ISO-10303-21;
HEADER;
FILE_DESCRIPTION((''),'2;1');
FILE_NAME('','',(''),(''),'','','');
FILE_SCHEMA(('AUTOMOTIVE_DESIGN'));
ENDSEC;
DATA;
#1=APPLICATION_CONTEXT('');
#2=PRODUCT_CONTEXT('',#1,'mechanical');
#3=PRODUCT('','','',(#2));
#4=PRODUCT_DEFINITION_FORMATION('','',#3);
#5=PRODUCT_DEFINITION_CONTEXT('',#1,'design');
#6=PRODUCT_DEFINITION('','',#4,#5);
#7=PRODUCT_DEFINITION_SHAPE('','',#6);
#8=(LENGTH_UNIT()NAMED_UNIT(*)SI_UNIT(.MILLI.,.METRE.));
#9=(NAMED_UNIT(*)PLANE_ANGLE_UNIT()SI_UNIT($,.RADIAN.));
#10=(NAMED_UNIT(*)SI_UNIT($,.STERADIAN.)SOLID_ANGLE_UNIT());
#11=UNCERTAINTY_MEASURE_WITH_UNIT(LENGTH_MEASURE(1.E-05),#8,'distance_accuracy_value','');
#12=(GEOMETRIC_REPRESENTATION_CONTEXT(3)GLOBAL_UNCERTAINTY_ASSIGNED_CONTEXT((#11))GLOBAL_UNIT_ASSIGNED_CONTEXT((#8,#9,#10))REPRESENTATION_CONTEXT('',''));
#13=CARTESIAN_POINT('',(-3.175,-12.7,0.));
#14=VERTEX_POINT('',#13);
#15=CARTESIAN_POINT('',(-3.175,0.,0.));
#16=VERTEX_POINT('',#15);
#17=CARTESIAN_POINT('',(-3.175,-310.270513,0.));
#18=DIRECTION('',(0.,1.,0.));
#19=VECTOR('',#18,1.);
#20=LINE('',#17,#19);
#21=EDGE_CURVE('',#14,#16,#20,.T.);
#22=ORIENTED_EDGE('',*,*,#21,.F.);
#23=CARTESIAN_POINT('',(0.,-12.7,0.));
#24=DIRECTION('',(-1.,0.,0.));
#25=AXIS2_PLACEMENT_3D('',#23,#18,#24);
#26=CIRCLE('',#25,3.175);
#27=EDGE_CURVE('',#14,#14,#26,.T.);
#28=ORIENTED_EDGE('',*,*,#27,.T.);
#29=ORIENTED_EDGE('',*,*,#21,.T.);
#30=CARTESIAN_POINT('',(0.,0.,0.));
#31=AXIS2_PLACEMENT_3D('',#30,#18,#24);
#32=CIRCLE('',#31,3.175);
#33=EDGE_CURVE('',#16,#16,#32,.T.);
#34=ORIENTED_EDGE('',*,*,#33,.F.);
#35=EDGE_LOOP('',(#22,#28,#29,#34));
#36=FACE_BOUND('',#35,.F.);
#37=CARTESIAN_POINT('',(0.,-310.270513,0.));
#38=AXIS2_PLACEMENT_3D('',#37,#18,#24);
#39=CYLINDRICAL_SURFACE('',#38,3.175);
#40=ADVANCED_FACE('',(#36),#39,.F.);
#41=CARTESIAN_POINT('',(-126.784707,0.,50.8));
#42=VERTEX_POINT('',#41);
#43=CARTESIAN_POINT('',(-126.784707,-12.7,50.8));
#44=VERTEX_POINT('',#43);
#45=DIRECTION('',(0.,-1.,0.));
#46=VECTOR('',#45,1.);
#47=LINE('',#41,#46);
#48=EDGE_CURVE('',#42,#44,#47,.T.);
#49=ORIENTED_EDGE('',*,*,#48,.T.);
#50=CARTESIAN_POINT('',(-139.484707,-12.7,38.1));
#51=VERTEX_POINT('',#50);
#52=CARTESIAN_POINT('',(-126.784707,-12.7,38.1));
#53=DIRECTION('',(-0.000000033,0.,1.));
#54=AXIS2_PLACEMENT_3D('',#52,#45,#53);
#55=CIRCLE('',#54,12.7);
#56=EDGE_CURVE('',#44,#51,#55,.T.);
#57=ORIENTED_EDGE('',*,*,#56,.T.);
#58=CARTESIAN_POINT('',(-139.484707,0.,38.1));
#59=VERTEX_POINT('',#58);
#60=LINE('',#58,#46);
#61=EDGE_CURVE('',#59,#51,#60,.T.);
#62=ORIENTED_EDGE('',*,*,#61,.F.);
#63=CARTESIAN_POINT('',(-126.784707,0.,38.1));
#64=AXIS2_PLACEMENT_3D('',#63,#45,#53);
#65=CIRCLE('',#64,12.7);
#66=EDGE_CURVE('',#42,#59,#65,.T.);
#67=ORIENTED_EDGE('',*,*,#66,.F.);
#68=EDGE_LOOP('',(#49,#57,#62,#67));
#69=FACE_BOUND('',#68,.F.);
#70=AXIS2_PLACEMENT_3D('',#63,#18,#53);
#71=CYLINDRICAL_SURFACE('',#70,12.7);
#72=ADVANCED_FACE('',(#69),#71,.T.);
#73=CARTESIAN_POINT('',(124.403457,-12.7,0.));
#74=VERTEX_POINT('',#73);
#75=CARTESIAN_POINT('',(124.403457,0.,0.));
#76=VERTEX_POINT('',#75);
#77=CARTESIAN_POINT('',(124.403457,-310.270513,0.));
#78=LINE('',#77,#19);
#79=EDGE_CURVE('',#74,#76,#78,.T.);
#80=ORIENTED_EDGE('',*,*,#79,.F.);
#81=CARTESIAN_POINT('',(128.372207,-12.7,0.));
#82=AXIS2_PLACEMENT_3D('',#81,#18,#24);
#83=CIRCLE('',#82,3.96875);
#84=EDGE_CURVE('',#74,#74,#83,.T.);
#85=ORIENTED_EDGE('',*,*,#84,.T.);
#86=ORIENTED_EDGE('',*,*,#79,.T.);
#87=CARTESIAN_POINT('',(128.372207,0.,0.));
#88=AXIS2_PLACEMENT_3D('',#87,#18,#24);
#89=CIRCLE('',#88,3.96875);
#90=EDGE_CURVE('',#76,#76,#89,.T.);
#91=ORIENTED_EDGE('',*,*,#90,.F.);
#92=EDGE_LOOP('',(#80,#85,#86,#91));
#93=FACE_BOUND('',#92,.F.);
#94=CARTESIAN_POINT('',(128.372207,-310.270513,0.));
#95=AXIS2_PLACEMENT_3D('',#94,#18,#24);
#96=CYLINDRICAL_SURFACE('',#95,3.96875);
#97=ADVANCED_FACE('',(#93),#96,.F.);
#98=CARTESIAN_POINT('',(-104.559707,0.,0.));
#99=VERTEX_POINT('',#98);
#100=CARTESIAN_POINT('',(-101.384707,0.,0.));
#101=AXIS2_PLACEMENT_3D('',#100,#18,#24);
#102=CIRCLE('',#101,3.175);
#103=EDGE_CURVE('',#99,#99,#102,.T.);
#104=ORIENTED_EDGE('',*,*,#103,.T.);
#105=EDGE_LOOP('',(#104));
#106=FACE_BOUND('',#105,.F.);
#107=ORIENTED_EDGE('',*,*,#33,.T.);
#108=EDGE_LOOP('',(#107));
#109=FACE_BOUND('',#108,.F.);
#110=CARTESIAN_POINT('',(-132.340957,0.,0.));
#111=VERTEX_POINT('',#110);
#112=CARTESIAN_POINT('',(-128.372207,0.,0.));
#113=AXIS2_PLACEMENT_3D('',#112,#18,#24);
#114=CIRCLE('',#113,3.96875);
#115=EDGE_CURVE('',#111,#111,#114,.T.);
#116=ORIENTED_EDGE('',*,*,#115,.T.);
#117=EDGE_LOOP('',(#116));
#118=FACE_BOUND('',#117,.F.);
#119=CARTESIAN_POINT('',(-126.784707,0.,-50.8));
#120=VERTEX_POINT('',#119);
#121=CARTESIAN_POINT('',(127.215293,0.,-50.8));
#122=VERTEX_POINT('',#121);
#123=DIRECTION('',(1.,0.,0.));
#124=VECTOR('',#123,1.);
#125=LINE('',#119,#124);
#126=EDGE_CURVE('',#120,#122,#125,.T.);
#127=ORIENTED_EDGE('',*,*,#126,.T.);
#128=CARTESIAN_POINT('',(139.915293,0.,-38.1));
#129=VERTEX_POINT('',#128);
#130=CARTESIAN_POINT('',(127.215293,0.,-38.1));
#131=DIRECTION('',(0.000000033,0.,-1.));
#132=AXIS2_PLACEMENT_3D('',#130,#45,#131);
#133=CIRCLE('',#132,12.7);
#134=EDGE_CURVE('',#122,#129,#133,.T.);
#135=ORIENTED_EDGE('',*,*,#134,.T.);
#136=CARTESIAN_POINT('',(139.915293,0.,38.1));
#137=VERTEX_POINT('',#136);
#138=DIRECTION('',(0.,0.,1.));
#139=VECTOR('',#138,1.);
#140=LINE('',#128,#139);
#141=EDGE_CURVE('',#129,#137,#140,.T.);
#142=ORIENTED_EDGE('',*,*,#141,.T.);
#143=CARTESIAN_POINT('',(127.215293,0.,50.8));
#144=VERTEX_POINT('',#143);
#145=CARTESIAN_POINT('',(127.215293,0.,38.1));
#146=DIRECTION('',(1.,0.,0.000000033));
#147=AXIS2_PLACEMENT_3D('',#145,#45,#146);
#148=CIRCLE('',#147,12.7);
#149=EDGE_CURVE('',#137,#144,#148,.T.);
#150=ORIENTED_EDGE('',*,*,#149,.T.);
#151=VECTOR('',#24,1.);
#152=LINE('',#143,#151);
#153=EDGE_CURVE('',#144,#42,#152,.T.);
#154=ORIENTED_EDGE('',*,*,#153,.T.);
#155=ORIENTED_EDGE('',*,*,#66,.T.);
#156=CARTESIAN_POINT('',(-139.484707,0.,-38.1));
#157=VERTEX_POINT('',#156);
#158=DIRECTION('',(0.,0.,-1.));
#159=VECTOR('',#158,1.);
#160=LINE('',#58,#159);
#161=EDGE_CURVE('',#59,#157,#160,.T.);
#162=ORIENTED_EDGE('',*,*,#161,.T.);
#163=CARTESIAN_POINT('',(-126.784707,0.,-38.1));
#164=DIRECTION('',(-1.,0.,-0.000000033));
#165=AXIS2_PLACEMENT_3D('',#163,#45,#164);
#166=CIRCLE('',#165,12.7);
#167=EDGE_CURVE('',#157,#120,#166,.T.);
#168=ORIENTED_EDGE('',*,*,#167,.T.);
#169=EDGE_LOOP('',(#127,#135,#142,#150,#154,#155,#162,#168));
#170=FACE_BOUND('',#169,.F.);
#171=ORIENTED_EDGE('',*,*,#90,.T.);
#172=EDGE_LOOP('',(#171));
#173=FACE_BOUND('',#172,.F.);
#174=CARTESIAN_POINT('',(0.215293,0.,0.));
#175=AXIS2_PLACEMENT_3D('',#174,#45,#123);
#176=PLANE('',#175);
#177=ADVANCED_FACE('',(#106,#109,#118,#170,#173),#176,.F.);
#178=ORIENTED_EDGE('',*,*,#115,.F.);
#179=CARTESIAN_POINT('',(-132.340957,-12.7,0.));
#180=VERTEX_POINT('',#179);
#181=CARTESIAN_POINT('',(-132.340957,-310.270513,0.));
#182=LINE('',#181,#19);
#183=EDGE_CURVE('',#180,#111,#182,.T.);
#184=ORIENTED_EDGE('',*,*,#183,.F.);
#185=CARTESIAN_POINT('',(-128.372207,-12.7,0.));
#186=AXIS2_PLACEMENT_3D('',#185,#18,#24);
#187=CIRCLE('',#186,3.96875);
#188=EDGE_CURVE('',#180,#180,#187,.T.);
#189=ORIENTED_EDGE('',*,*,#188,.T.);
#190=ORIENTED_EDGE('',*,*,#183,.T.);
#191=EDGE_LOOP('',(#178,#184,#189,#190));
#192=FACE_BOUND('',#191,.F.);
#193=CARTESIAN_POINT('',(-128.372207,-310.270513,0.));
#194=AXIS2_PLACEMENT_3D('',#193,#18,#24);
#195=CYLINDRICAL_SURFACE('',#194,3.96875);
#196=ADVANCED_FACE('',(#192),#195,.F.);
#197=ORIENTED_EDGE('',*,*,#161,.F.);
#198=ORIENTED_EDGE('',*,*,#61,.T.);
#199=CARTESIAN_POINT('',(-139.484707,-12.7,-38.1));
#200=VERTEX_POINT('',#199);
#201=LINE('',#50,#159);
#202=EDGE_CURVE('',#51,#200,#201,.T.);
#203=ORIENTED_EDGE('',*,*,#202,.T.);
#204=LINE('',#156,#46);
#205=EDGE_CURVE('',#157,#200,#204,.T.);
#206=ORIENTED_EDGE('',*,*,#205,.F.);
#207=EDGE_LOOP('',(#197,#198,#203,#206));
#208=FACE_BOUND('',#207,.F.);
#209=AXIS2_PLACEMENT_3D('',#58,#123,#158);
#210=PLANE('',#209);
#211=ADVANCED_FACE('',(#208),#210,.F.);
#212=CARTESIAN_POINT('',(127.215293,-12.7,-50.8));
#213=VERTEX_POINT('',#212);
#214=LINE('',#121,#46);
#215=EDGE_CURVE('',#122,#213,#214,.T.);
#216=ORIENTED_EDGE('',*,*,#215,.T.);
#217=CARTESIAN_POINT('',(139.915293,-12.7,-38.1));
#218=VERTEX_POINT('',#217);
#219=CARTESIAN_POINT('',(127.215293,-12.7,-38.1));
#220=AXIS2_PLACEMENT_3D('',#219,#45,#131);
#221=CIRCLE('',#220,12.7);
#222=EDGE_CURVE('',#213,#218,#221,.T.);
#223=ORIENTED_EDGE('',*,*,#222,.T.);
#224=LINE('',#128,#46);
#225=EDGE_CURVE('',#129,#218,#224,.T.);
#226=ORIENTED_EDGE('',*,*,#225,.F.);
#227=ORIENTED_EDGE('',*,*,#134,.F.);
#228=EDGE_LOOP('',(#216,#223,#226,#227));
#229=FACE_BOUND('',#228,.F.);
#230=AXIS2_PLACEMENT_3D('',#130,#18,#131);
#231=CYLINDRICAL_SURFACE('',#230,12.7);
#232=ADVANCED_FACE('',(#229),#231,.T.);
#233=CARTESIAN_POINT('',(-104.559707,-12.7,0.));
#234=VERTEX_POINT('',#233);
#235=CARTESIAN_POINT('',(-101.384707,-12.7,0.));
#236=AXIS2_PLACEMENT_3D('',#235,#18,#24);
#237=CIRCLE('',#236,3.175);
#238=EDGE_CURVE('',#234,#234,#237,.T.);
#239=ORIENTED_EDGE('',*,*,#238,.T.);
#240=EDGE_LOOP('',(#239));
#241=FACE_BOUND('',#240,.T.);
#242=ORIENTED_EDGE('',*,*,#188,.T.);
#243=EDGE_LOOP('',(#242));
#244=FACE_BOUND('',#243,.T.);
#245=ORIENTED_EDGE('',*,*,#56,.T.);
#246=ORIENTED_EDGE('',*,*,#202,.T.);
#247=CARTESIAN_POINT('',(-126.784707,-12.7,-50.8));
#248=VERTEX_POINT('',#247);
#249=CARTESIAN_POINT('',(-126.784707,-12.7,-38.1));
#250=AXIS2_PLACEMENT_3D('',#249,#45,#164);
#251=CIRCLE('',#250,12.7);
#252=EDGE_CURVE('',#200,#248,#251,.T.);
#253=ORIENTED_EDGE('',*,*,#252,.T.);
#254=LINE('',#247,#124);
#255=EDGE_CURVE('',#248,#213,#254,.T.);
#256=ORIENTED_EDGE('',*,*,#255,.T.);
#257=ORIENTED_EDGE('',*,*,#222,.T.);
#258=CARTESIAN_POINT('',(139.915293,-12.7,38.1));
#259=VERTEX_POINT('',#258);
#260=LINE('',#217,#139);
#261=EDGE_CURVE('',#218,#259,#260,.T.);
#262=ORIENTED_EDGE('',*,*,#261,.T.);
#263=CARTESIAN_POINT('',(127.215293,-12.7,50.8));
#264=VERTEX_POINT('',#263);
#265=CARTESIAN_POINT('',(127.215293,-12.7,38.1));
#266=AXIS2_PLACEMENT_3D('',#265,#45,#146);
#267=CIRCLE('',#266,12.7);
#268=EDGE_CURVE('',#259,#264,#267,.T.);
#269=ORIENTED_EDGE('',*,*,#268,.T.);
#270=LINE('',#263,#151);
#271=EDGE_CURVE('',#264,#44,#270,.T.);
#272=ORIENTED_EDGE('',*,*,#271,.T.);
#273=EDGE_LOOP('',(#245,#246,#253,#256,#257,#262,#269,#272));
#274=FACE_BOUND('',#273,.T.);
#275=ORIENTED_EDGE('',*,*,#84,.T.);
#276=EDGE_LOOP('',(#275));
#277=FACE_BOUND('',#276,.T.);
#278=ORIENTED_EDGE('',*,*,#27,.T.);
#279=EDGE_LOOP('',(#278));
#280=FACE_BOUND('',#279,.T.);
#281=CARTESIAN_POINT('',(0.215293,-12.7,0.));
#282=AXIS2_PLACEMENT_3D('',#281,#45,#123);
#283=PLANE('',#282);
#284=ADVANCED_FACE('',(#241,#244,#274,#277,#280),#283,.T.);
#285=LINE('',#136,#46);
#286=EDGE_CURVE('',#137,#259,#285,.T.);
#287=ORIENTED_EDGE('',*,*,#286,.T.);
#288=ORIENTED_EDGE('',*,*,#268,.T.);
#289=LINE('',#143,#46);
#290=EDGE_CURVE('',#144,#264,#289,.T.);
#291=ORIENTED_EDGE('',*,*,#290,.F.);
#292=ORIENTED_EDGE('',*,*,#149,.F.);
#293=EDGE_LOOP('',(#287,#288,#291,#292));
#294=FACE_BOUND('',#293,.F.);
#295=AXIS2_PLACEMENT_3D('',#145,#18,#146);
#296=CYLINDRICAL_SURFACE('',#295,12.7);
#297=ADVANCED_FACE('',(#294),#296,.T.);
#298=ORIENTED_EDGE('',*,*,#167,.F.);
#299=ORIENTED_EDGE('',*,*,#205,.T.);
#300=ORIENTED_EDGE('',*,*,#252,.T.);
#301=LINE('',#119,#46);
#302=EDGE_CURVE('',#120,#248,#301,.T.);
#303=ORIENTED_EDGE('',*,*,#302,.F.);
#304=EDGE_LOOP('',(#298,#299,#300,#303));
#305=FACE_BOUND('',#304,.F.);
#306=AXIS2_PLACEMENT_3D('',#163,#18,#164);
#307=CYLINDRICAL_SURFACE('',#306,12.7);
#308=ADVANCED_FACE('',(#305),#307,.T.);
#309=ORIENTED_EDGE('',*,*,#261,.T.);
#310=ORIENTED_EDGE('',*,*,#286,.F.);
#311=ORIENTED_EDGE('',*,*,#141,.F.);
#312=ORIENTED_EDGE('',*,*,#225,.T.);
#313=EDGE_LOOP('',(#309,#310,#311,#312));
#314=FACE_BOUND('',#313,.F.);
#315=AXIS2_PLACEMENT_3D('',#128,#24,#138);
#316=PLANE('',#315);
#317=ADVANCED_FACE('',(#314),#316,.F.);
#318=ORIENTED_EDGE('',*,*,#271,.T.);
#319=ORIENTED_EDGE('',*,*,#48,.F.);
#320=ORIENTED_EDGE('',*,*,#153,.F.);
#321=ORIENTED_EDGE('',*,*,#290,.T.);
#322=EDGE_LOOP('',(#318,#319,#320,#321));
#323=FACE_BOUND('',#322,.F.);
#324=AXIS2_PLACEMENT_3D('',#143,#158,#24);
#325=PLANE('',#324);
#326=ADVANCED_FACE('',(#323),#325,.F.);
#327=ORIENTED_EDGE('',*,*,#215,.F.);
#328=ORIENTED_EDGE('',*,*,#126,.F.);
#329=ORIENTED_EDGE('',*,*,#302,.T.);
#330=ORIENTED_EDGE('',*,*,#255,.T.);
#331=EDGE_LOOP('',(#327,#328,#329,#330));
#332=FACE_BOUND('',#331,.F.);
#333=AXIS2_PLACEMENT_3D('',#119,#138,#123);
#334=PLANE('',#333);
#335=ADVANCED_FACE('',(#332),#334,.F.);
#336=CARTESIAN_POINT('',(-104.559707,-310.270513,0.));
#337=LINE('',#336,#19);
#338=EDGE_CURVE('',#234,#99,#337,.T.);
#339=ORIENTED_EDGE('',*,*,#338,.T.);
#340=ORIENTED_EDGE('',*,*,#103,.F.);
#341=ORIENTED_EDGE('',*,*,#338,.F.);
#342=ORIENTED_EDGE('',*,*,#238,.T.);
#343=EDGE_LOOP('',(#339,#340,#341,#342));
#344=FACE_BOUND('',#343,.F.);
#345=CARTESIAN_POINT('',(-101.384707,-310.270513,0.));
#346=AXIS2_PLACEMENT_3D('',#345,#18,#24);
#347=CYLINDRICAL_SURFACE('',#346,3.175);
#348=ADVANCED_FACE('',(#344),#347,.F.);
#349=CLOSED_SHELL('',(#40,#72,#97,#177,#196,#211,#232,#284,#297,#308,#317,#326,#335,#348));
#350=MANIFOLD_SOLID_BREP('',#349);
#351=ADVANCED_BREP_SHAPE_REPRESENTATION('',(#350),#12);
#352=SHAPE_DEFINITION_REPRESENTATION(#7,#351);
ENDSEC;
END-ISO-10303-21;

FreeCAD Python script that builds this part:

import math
import FreeCAD as App
import Part
import Sketcher

V = App.Vector
Q = App.Units.Quantity

doc = App.newDocument("Part")
body = doc.addObject("PartDesign::Body", "Body")

# Sketch on XZ plane
sketch1 = body.newObject("Sketcher::SketchObject", "Sketch")
sketch1.AttachmentSupport = (doc.getObject("XZ_Plane"), [""])
sketch1.MapMode = "FlatFace"
sketch1.addGeometry([
    Part.LineSegment(V(127.215293, 50.8, 0), V(-126.784707, 50.8, 0)),  # 0
    Part.ArcOfCircle(Part.Circle(V(-126.784707, 38.1, 0), V(0, 0, 1), 12.7), math.radians(90.000002), math.radians(179.999998)),  # 1
    Part.LineSegment(V(-139.484707, 38.1, 0), V(-139.484707, -38.1, 0)),  # 2
    Part.ArcOfCircle(Part.Circle(V(-126.784707, -38.1, 0), V(0, 0, 1), 12.7), math.radians(-179.999998), math.radians(-90.000002)),  # 3
    Part.LineSegment(V(-126.784707, -50.8, 0), V(127.215293, -50.8, 0)),  # 4
    Part.ArcOfCircle(Part.Circle(V(127.215293, -38.1, 0), V(0, 0, 1), 12.7), math.radians(-89.999998), math.radians(-0.000002)),  # 5
    Part.LineSegment(V(139.915293, -38.1, 0), V(139.915293, 38.1, 0)),  # 6
    Part.ArcOfCircle(Part.Circle(V(127.215293, 38.1, 0), V(0, 0, 1), 12.7), math.radians(0.000002), math.radians(89.999998)),  # 7
], False)
sketch1.addConstraint([
    Sketcher.Constraint("Tangent", 0, 2, 1, 1),
    Sketcher.Constraint("Tangent", 1, 2, 2, 1),
    Sketcher.Constraint("Tangent", 2, 2, 3, 1),
    Sketcher.Constraint("Tangent", 3, 2, 4, 1),
    Sketcher.Constraint("Tangent", 4, 2, 5, 1),
    Sketcher.Constraint("Tangent", 5, 2, 6, 1),
    Sketcher.Constraint("Tangent", 6, 2, 7, 1),
    Sketcher.Constraint("Tangent", 7, 2, 0, 1),
    Sketcher.Constraint("Horizontal", 0),
    Sketcher.Constraint("Vertical", 2),
    Sketcher.Constraint("Horizontal", 4),
    Sketcher.Constraint("Vertical", 6),
    Sketcher.Constraint("Equal", 1, 3),
    Sketcher.Constraint("Equal", 3, 5),
    Sketcher.Constraint("Equal", 5, 7),
    Sketcher.Constraint("Radius", 1, Q("0.5 in")),
    Sketcher.Constraint("DistanceX", 0, 2, 0, 1, Q("10 in")),
    Sketcher.Constraint("DistanceY", 2, 2, 2, 1, Q("3 in")),
    Sketcher.Constraint("DistanceY", -1, 1, 0, 2, Q("2 in")),
    Sketcher.Constraint("DistanceX", 1, 3, -1, 1, Q("126.784707 mm")),
])
pad1 = body.newObject("PartDesign::Pad", "Pad")
pad1.Profile = sketch1
pad1.Length = Q("0.5 in")

# Sketch on XZ plane
sketch2 = body.newObject("Sketcher::SketchObject", "Sketch001")
sketch2.AttachmentSupport = (doc.getObject("XZ_Plane"), [""])
sketch2.MapMode = "FlatFace"
sketch2.AttachmentOffset = App.Placement(V(0, 0, 0.5 * 25.4), App.Rotation())
sketch2.addGeometry([
    Part.Circle(V(-128.372207, 0, 0), V(0, 0, 1), 3.96875),
    Part.Circle(V(128.372207, 0, 0), V(0, 0, 1), 3.96875),
], False)
sketch2.addConstraint([
    Sketcher.Constraint("Equal", 0, 1),
    Sketcher.Constraint("Symmetric", 0, 3, 1, 3, -1, 1),
    Sketcher.Constraint("PointOnObject", 0, 3, -1),
    Sketcher.Constraint("Diameter", 0, Q("0.3125 in")),
    Sketcher.Constraint("DistanceX", 0, 3, -1, 1, Q("128.372207 mm")),
])
doc.recompute()
hole = body.newObject("PartDesign::Hole", "Hole")
hole.Profile = sketch2
hole.ThreadType = "None"
hole.Diameter = Q("0.3125 in")
hole.DepthType = "ThroughAll"

# Sketch on XZ plane
sketch3 = body.newObject("Sketcher::SketchObject", "Sketch002")
sketch3.AttachmentSupport = (doc.getObject("XZ_Plane"), [""])
sketch3.MapMode = "FlatFace"
sketch3.AttachmentOffset = App.Placement(V(0, 0, 0.5 * 25.4), App.Rotation())
sketch3.addGeometry(Part.Circle(V(-101.384707, 0, 0), V(0, 0, 1), 3.175), False)
sketch3.addConstraint([
    Sketcher.Constraint("PointOnObject", 0, 3, -1),
    Sketcher.Constraint("Diameter", 0, Q("0.25 in")),
    Sketcher.Constraint("DistanceX", 0, 3, -1, 1, Q("101.384707 mm")),
])
doc.recompute()
hole2 = body.newObject("PartDesign::Hole", "Hole001")
hole2.Profile = sketch3
hole2.ThreadType = "None"
hole2.Diameter = Q("0.25 in")
hole2.DepthType = "ThroughAll"

# Sketch on XZ plane
sketch4 = body.newObject("Sketcher::SketchObject", "Sketch003")
sketch4.AttachmentSupport = (doc.getObject("XZ_Plane"), [""])
sketch4.MapMode = "FlatFace"
sketch4.AttachmentOffset = App.Placement(V(0, 0, 0.5 * 25.4), App.Rotation())
sketch4.addGeometry(Part.Circle(V(0, 0, 0), V(0, 0, 1), 3.175), False)
sketch4.addConstraint([
    Sketcher.Constraint("Coincident", 0, 3, -1, 1),
    Sketcher.Constraint("Diameter", 0, Q("0.25 in")),
])
doc.recompute()
hole3 = body.newObject("PartDesign::Hole", "Hole002")
hole3.Profile = sketch4
hole3.ThreadType = "None"
hole3.Diameter = Q("0.25 in")
hole3.DepthType = "ThroughAll"

doc.recompute()
